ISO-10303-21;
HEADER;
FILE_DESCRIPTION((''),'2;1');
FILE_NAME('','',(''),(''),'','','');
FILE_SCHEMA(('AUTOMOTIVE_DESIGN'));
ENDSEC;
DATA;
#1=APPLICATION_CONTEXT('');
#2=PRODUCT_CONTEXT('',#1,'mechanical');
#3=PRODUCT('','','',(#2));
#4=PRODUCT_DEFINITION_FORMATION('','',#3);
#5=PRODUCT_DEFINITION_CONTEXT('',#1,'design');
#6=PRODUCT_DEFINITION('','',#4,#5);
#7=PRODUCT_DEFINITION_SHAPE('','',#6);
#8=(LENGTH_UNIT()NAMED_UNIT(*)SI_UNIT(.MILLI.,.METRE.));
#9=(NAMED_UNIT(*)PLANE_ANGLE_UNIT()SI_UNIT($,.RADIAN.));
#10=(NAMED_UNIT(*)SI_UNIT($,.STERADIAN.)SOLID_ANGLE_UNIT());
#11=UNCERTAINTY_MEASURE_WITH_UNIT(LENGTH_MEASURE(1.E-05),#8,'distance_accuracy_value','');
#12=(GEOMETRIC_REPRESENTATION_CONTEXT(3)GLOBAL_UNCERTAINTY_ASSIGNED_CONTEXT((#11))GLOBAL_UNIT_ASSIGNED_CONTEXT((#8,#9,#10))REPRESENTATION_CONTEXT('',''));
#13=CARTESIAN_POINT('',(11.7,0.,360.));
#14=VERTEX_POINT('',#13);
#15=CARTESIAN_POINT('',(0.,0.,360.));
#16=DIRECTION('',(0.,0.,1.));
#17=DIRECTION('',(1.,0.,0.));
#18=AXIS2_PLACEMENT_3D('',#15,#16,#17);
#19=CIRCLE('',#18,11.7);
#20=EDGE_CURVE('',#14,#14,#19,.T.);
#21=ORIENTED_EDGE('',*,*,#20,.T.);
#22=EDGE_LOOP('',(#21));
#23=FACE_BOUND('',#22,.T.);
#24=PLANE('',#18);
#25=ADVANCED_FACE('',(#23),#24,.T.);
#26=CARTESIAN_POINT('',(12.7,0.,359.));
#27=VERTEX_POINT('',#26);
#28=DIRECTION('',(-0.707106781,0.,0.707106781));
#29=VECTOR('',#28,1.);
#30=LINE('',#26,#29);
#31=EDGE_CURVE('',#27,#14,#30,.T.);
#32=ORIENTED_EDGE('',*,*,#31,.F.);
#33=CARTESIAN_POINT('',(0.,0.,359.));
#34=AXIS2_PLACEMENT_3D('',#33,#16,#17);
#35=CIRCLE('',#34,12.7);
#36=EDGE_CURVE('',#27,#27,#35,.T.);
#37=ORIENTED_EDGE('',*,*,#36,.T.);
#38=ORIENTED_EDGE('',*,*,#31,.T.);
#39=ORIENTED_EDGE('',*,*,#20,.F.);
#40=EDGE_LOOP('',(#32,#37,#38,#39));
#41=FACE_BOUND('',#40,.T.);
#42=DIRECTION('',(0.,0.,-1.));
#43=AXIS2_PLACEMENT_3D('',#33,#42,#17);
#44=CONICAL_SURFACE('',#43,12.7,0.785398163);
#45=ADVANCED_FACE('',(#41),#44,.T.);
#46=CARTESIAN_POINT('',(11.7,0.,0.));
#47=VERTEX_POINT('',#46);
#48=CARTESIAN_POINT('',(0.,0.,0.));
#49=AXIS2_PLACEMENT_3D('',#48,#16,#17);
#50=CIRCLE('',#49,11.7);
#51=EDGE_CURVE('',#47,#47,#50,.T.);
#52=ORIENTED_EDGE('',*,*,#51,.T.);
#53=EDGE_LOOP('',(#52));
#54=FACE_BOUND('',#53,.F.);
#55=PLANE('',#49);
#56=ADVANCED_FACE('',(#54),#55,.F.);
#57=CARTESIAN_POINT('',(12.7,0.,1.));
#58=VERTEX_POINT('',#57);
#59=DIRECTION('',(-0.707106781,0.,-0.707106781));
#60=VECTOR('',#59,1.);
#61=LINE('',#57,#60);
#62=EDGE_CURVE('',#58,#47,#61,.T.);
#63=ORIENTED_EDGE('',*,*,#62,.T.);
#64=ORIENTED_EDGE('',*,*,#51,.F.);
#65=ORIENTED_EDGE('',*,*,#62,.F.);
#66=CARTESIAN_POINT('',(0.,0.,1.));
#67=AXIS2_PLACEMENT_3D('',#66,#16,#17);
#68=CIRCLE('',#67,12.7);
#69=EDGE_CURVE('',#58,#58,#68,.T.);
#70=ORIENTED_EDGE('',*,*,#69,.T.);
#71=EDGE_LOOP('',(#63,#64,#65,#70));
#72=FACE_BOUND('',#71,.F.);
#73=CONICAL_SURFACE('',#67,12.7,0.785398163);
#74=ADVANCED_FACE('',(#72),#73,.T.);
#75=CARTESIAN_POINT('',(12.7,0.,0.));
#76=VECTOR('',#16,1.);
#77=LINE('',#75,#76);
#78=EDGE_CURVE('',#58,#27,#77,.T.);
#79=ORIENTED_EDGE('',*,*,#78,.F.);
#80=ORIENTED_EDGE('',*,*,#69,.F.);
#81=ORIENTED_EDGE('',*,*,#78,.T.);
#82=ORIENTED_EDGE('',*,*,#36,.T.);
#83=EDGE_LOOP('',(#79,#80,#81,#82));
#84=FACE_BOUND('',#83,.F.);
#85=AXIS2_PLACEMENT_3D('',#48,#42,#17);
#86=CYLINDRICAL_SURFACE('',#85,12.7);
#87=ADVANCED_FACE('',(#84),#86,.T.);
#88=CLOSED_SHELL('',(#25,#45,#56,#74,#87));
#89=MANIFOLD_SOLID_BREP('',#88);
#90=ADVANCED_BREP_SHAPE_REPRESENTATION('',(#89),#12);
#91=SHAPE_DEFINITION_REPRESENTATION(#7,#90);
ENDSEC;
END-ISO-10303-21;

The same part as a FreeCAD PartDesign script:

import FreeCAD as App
import Part
import Sketcher


def edges_at(feature, points):
    """Names of the edges that pass closest to the given points."""
    edges = feature.Shape.Edges
    near = lambda p: min(range(len(edges)), key=lambda i: edges[i].distToShape(Part.Vertex(*p))[0])
    return sorted({f"Edge{near(p) + 1}" for p in points})

doc = App.newDocument("Part")
body = doc.addObject("PartDesign::Body", "Body")

sketch1 = body.newObject("Sketcher::SketchObject", "Sketch")
sketch1.AttachmentSupport = (doc.getObject("XY_Plane"), [""])
sketch1.MapMode = "FlatFace"
sketch1.addGeometry(Part.Circle(App.Vector(0, 0, 0), App.Vector(0, 0, 1), 12.7), False)
sketch1.addConstraint([
    Sketcher.Constraint("Coincident", 0, 3, -1, 1),
    Sketcher.Constraint("Diameter", 0, 25.4),
])
pad1 = body.newObject("PartDesign::Pad", "Pad")
pad1.Profile = sketch1
pad1.Length = 360
doc.recompute()

chamfer = body.newObject("PartDesign::Chamfer", "Chamfer")
chamfer.Base = (pad1, edges_at(pad1, [(-12.7, 0, 360), (-12.7, 0, 0)]))
chamfer.Size = 1

doc.recompute()
